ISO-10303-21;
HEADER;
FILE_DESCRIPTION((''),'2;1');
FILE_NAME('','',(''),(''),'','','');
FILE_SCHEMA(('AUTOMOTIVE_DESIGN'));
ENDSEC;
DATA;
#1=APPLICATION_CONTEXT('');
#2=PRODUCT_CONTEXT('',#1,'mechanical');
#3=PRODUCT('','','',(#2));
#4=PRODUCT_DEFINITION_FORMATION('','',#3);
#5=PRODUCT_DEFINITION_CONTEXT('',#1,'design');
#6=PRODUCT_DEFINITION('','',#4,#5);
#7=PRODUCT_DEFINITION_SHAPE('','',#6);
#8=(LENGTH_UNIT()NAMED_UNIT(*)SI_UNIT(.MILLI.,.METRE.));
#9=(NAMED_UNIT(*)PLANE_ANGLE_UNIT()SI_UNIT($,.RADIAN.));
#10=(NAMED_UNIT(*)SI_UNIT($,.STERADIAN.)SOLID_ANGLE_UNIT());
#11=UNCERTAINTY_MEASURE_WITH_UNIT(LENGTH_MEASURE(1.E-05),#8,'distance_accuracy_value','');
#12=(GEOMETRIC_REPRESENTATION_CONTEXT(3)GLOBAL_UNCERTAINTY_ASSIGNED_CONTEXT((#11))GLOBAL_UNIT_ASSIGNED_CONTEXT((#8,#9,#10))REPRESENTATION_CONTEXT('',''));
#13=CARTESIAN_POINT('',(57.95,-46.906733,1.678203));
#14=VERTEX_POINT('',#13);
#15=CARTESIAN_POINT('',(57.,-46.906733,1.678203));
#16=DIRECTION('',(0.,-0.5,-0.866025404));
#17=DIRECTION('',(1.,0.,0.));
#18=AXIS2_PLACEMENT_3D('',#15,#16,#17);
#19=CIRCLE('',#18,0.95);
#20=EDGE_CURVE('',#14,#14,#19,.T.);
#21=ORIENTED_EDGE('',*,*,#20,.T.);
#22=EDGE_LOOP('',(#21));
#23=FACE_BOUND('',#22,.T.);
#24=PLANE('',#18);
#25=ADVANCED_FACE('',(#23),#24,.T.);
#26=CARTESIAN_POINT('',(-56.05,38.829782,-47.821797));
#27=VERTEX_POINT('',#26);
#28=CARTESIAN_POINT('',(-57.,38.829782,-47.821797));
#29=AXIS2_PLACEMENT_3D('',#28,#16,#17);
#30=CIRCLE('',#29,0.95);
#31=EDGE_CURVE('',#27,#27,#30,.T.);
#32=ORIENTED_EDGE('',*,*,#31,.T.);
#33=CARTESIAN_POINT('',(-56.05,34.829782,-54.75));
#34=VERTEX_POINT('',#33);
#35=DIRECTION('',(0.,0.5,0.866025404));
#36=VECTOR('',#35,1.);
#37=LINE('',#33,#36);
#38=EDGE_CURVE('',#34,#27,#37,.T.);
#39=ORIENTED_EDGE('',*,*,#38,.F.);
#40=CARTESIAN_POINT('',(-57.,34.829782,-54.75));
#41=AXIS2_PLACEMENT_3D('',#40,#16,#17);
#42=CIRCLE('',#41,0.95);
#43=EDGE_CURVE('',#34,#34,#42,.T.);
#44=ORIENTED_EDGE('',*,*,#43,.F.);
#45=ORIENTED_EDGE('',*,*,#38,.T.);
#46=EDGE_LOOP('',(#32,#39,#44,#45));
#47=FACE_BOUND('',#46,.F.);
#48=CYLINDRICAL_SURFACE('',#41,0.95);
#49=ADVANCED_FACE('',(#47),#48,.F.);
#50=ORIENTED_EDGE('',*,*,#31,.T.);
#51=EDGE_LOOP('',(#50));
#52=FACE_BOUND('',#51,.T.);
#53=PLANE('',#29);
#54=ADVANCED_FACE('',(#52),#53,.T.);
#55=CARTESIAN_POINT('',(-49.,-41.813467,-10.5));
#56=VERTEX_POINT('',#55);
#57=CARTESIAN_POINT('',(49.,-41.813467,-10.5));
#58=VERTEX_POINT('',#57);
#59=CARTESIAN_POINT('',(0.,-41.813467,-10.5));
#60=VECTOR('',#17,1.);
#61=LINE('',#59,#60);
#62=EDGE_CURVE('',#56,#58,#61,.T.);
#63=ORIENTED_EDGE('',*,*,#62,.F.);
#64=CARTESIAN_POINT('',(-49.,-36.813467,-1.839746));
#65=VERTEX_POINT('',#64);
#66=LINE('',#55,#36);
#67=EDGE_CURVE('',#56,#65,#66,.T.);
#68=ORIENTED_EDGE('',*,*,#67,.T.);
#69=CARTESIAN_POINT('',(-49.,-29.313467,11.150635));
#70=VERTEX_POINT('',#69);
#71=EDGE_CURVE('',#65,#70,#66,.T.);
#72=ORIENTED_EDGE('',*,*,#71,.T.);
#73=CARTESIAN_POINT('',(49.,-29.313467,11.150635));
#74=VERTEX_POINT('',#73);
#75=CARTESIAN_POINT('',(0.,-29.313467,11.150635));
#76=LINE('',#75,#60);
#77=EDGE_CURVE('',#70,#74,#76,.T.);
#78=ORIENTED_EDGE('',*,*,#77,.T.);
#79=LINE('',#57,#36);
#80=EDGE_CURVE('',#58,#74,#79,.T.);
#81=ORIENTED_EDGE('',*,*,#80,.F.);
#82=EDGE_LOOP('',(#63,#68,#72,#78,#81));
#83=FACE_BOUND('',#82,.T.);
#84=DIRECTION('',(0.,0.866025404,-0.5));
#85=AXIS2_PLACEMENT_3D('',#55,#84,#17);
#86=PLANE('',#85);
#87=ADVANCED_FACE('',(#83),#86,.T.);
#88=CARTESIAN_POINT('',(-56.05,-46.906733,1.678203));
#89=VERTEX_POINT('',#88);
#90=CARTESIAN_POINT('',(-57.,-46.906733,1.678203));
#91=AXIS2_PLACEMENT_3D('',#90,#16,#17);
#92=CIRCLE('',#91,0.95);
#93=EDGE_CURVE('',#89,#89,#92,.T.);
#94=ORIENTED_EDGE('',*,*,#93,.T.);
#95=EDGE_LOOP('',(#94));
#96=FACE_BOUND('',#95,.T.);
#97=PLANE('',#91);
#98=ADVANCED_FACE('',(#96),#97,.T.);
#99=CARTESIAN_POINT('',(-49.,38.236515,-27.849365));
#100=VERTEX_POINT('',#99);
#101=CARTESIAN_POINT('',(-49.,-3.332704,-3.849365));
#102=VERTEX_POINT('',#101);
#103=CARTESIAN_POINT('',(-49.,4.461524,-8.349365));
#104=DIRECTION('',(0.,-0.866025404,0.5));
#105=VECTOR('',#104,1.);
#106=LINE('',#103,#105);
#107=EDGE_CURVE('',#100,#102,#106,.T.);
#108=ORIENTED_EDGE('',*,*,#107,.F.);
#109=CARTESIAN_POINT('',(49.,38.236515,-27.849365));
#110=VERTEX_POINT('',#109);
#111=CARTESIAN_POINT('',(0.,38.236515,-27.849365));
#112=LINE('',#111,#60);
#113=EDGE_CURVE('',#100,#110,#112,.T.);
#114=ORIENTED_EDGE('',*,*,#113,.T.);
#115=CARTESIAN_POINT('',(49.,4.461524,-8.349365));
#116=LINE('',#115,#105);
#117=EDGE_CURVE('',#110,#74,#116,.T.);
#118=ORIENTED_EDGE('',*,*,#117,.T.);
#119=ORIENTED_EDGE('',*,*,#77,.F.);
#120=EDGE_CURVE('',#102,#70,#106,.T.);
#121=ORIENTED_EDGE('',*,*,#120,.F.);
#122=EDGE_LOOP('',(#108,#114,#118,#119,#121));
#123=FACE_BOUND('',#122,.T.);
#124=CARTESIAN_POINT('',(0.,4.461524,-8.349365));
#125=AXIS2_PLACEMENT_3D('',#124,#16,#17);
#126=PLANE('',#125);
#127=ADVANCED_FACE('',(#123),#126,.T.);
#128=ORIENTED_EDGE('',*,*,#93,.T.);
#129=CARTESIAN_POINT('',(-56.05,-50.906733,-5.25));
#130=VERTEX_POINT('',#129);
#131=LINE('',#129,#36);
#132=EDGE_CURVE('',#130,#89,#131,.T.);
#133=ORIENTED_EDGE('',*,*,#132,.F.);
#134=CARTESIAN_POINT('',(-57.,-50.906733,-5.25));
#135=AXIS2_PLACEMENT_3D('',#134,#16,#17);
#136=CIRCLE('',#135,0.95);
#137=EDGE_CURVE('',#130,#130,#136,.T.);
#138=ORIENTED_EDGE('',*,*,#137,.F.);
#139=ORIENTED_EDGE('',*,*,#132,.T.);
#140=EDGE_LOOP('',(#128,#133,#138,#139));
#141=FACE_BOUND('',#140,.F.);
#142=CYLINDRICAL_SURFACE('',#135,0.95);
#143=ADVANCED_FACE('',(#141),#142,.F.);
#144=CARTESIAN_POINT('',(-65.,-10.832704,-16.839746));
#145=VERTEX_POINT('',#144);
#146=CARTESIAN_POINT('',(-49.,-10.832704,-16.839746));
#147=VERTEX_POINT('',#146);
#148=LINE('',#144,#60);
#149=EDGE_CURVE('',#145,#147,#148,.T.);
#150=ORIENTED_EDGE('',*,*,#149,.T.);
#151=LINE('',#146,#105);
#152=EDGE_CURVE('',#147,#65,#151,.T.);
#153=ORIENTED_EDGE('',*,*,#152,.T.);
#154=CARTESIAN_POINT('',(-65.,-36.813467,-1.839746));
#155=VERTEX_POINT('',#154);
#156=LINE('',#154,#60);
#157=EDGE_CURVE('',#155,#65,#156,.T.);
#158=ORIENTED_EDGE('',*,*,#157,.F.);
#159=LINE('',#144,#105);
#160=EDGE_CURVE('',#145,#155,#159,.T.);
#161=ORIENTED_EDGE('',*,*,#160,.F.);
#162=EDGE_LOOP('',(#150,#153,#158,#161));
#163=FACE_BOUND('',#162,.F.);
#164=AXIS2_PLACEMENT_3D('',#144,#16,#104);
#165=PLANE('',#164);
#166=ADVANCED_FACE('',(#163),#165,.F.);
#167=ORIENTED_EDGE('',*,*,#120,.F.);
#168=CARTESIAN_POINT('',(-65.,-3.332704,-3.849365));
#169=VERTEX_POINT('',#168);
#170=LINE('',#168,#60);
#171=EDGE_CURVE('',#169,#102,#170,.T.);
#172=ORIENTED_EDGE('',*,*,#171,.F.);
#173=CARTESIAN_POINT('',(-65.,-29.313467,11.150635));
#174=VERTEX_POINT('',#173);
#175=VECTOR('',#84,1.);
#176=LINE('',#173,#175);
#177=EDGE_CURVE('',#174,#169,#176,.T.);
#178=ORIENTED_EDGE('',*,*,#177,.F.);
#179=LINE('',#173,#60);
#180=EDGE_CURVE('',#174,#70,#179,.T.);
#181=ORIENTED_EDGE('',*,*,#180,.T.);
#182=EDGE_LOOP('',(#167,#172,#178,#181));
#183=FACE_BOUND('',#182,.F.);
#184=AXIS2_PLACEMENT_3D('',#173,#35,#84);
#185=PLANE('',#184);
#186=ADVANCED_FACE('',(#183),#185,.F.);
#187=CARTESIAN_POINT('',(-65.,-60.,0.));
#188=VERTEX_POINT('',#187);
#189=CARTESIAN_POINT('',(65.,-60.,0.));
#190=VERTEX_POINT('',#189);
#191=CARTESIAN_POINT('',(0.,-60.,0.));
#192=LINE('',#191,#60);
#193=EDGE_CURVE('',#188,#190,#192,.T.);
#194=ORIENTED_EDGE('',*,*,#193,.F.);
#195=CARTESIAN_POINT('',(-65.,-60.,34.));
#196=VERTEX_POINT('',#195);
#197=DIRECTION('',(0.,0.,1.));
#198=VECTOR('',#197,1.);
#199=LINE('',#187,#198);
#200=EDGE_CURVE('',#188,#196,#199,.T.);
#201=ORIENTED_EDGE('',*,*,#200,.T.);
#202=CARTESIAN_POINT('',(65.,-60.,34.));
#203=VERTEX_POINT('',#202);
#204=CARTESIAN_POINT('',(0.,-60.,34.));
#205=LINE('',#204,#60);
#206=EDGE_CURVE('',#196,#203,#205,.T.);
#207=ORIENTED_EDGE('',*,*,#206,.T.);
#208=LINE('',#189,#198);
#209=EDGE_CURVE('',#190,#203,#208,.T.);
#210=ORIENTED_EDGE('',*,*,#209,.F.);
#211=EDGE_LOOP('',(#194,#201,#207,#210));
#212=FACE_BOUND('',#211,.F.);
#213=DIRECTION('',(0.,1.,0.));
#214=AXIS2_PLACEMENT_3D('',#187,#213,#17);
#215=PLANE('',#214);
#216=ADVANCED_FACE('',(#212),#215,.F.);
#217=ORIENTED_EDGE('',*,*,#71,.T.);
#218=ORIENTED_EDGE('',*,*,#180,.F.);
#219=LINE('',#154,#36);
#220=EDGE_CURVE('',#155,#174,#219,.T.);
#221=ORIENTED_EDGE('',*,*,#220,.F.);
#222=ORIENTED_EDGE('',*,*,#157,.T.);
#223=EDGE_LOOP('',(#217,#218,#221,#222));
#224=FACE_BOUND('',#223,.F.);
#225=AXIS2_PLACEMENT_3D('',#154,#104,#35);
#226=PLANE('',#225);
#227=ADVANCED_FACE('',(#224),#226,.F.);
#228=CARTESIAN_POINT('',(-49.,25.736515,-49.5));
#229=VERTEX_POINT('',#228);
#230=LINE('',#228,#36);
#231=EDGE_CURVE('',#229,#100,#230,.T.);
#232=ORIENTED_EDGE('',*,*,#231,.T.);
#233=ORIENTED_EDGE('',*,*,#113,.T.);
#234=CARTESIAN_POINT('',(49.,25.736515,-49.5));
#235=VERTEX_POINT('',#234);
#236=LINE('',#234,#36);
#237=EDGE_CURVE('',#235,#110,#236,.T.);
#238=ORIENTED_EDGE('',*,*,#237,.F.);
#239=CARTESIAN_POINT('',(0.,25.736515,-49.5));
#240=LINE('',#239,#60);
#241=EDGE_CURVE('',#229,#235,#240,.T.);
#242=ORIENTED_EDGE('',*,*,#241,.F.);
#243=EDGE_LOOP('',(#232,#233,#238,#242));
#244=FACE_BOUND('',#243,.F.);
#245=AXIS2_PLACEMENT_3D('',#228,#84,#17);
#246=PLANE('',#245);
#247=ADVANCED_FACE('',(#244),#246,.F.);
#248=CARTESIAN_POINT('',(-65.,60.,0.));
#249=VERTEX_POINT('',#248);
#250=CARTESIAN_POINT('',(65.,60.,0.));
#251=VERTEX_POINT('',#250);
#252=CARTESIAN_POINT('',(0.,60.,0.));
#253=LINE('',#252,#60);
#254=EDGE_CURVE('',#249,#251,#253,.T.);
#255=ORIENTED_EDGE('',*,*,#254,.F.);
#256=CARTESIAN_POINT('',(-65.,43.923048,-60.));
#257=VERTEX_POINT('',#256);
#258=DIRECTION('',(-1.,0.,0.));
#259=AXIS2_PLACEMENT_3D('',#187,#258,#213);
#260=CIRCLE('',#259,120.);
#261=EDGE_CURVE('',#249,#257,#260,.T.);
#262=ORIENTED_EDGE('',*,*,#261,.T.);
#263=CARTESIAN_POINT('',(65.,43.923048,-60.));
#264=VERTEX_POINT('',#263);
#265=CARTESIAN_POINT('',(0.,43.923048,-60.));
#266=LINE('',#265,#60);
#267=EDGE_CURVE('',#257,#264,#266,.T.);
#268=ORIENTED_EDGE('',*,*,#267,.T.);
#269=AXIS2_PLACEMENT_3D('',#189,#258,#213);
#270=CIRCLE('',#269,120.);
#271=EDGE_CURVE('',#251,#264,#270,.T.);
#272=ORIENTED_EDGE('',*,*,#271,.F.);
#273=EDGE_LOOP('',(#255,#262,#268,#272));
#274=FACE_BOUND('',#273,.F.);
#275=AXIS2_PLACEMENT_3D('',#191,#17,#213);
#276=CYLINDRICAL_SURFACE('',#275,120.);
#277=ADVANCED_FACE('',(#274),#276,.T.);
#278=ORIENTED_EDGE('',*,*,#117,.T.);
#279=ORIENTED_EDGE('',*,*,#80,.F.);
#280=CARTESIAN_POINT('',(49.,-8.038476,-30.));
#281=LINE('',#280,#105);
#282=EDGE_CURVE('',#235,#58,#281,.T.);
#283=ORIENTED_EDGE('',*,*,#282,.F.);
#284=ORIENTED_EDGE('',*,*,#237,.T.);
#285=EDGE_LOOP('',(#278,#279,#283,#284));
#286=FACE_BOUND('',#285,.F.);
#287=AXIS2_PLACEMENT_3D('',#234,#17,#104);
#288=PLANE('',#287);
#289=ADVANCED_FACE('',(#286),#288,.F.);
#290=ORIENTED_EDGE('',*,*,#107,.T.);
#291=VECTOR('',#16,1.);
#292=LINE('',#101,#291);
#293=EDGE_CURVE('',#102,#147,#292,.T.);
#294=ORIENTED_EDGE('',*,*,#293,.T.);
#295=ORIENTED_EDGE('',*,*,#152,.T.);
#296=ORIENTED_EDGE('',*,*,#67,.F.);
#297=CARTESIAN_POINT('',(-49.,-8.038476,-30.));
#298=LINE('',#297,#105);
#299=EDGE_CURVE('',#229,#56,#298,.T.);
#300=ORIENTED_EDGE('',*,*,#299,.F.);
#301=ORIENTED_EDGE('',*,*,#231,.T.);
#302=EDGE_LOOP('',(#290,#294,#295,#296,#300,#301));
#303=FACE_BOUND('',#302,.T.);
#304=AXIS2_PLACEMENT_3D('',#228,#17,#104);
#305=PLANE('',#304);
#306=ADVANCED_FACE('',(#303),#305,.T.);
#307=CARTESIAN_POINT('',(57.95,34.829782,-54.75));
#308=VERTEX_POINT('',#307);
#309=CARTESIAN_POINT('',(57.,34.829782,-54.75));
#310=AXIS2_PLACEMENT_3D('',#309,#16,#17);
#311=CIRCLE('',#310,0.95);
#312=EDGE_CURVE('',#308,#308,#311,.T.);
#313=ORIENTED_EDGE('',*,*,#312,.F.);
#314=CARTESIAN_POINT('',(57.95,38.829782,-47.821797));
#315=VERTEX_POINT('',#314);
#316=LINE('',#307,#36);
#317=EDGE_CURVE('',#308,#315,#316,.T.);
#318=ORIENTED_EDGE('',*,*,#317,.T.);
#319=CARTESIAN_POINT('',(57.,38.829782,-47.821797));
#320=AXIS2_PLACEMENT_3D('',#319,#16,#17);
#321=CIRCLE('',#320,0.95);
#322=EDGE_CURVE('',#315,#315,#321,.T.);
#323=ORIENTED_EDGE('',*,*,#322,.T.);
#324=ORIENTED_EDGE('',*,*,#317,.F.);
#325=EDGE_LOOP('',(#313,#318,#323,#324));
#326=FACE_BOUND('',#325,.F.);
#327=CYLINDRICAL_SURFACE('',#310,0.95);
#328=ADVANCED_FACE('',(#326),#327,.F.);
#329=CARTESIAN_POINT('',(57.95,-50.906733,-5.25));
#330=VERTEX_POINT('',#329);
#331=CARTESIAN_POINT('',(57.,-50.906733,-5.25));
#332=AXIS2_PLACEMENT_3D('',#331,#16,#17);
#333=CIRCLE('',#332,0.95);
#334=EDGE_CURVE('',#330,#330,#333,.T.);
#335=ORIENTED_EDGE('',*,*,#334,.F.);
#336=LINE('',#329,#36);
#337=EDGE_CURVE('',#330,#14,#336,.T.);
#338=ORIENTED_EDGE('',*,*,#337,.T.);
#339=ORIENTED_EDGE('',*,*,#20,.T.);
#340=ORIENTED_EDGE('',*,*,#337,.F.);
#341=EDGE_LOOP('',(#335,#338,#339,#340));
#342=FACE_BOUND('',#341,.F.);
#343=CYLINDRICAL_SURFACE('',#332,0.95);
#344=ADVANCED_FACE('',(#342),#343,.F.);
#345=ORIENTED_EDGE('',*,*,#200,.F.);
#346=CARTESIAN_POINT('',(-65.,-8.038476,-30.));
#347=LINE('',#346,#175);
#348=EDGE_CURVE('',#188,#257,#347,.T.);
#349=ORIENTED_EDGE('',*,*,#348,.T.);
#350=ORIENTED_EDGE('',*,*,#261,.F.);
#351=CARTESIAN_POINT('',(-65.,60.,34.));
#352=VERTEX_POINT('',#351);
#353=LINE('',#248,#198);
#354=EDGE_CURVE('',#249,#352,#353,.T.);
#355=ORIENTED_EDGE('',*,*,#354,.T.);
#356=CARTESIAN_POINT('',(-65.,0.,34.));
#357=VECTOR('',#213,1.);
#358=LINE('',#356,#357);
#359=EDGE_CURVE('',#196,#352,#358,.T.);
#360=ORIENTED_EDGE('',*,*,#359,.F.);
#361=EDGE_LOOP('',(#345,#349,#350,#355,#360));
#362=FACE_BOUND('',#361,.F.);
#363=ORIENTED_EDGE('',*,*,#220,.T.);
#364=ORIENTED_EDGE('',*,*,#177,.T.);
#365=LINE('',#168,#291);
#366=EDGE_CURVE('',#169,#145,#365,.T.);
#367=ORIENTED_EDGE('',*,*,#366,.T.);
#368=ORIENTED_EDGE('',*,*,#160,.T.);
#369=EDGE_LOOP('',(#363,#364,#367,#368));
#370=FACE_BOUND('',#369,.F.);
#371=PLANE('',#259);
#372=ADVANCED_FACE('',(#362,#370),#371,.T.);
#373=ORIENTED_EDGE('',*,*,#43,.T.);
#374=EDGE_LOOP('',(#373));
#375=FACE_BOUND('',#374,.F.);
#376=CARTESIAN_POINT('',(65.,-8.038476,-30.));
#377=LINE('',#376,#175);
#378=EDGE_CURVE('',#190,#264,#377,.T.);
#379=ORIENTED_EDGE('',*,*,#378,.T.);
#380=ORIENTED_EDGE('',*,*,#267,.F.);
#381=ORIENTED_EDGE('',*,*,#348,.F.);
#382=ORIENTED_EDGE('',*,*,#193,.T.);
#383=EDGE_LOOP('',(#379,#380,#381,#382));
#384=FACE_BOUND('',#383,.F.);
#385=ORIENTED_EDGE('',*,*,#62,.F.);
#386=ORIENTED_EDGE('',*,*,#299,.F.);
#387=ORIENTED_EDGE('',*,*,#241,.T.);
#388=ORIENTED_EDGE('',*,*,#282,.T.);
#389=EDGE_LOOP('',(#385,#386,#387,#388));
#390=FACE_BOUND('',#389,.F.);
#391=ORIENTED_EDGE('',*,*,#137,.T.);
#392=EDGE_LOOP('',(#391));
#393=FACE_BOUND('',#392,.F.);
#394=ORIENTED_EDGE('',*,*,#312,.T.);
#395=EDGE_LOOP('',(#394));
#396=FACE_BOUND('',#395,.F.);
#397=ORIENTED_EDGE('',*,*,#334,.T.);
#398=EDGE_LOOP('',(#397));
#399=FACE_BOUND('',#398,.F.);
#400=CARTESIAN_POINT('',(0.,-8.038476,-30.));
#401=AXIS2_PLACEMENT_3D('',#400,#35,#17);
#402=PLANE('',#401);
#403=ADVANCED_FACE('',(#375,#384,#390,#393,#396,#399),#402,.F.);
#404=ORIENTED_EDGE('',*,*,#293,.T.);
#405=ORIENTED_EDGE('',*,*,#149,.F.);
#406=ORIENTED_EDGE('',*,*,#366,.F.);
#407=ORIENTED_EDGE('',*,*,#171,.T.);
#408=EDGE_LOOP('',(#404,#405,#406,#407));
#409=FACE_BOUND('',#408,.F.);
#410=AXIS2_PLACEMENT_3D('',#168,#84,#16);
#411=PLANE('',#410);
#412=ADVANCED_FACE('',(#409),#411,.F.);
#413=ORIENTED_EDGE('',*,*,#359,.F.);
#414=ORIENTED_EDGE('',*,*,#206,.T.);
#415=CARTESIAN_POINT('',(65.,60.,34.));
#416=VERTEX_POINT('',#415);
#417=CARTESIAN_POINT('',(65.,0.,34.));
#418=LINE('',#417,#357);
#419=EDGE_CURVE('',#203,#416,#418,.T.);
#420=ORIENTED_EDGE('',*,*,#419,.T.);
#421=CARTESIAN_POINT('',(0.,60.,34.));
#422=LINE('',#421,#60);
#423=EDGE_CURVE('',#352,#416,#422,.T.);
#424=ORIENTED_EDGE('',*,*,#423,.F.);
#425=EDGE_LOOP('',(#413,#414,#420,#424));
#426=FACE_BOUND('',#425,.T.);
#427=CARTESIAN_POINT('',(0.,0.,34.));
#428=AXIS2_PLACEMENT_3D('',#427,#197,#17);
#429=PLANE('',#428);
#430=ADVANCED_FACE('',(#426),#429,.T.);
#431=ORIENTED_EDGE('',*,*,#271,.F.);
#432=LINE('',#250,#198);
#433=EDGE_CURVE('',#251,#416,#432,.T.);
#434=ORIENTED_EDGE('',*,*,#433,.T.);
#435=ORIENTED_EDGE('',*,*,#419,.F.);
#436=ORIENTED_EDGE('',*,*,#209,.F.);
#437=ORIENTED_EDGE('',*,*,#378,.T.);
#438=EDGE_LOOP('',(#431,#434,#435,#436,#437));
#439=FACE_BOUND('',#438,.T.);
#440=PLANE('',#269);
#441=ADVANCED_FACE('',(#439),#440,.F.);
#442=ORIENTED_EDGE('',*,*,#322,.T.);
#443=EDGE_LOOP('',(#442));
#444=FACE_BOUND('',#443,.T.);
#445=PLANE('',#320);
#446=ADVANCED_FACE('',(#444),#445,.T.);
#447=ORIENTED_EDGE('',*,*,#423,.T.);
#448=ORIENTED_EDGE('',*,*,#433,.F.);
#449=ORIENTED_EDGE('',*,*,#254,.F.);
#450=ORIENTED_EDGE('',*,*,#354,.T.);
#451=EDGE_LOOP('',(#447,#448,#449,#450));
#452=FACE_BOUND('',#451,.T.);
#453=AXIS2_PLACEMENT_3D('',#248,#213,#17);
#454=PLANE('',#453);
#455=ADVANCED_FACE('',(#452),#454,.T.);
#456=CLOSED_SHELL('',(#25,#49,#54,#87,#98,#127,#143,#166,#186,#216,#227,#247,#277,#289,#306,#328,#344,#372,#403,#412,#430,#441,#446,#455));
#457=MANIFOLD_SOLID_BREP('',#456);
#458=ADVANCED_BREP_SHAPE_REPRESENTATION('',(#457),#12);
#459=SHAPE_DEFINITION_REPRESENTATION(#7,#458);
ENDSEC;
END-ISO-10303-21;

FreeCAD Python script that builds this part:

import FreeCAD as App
import Part
import Sketcher

V = App.Vector
Q = App.Units.Quantity


def add_polygon(sketch, points):
    """Adds a closed chain of lines whose ends are joined by coincident constraints."""
    first, n = sketch.GeometryCount, len(points)
    for a, b in zip(points, points[1:] + points[:1]):
        sketch.addGeometry(Part.LineSegment(App.Vector(*a, 0), App.Vector(*b, 0)), False)
    for i in range(n):
        sketch.addConstraint(Sketcher.Constraint("Coincident", first + i, 2, first + (i + 1) % n, 1))

doc = App.newDocument("Part")
body = doc.addObject("PartDesign::Body", "Body")

sketch1 = body.newObject("Sketcher::SketchObject", "Sketch")
sketch1.AttachmentSupport = (doc.getObject("XY_Plane"), [""])
sketch1.MapMode = "FlatFace"
add_polygon(sketch1, [(-65, 60), (-65, -60), (65, -60), (65, 60)])
sketch1.addConstraint([
    Sketcher.Constraint("Vertical", 0),
    Sketcher.Constraint("Horizontal", 1),
    Sketcher.Constraint("Vertical", 2),
    Sketcher.Constraint("Horizontal", 3),
    Sketcher.Constraint("Symmetric", 0, 2, 2, 2, -1, 1),
    Sketcher.Constraint("DistanceX", 1, 1, 1, 2, 130.0),
    Sketcher.Constraint("DistanceY", 0, 2, 0, 1, 120.0),
])
pad1 = body.newObject("PartDesign::Pad", "Pad")
pad1.Profile = sketch1
pad1.Length = 34

sketch2 = body.newObject("Sketcher::SketchObject", "Sketch001")
sketch2.AttachmentSupport = (doc.getObject("XY_Plane"), [""])
sketch2.MapMode = "FlatFace"
add_polygon(sketch2, [(-65, 60), (-65, -60), (65, -60), (65, 60)])
sketch2.addGeometry(Part.LineSegment(V(65, -60, 0), V(-65, -60, 0)), True)
sketch2.addConstraint([
    Sketcher.Constraint("Vertical", 0),
    Sketcher.Constraint("Horizontal", 1),
    Sketcher.Constraint("Vertical", 2),
    Sketcher.Constraint("Horizontal", 3),
    Sketcher.Constraint("Horizontal", 4),
    Sketcher.Constraint("Coincident", 4, 1, 1, 2),
    Sketcher.Constraint("Symmetric", 0, 2, 2, 2, -1, 1),
    Sketcher.Constraint("Vertical", 3, 2, 4, 2),
    Sketcher.Constraint("DistanceX", 1, 1, 1, 2, 130.0),
    Sketcher.Constraint("DistanceY", 0, 2, 0, 1, 120.0),
])
revolution = body.newObject("PartDesign::Revolution", "Revolution")
revolution.Profile = sketch2
revolution.ReferenceAxis = (sketch2, ["Axis0"])
revolution.Angle = 30

sketch3 = body.newObject("Sketcher::SketchObject", "Sketch002")
sketch3.Placement = App.Placement(V(0, -15, -25.980762), App.Rotation(V(1, 0, 0), V(0, -0.866025404, 0.5), V(0, -0.5, -0.866025404), "ZXY"))
add_polygon(sketch3, [(-49, 31), (-49, -47), (49, -47), (49, 31)])
sketch3.addConstraint([
    Sketcher.Constraint("Vertical", 0),
    Sketcher.Constraint("Horizontal", 1),
    Sketcher.Constraint("Vertical", 2),
    Sketcher.Constraint("Horizontal", 3),
    Sketcher.Constraint("DistanceX", 1, 1, 1, 2, 98.0),
    Sketcher.Constraint("DistanceY", 0, 2, 0, 1, 78.0),
    Sketcher.Constraint("DistanceX", 0, 2, -1, 1, 49.0),
    Sketcher.Constraint("DistanceY", 0, 2, -1, 1, 47.038476),
])
pocket1 = body.newObject("PartDesign::Pocket", "Pocket")
pocket1.Profile = sketch3
pocket1.Length = 25

sketch4 = body.newObject("Sketcher::SketchObject", "Sketch003")
sketch4.AttachmentSupport = (doc.getObject("YZ_Plane"), [""])
sketch4.MapMode = "FlatFace"
sketch4.AttachmentOffset = App.Placement(V(0, 0, -65), App.Rotation())
add_polygon(sketch4, [(-11, -17), (-37, -2), (-29, 11), (-3, -4)])
sketch4.addConstraint([
    Sketcher.Constraint("Perpendicular", 0, 1),
    Sketcher.Constraint("Perpendicular", 1, 2),
    Sketcher.Constraint("Perpendicular", 2, 3),
    Sketcher.Constraint("Angle", 0, Q("150 deg")),
    Sketcher.Constraint("Distance", 0, 30.0),
    Sketcher.Constraint("Distance", 1, 15.0),
    Sketcher.Constraint("DistanceX", 0, 2, -1, 1, 36.813467),
    Sketcher.Constraint("DistanceY", 0, 2, -1, 1, 1.839746),
])
pocket2 = body.newObject("PartDesign::Pocket", "Pocket001")
pocket2.Profile = sketch4
pocket2.Length = 16
pocket2.Reversed = True

sketch5 = body.newObject("Sketcher::SketchObject", "Sketch004")
sketch5.Placement = App.Placement(V(0, -15, -25.980762), App.Rotation(V(1, 0, 0), V(0, -0.866025404, 0.5), V(0, -0.5, -0.866025404), "ZXY"))
sketch5.addGeometry([
    Part.Circle(V(57, 41.5, 0), V(0, 0, 1), 0.9),
    Part.Circle(V(-57, 41.5, 0), V(0, 0, 1), 0.9),
    Part.Circle(V(-57, -57.5, 0), V(0, 0, 1), 0.9),
    Part.Circle(V(57, -57.5, 0), V(0, 0, 1), 0.9),
], False)
sketch5.addConstraint([
    Sketcher.Constraint("Equal", 0, 1),
    Sketcher.Constraint("Equal", 1, 2),
    Sketcher.Constraint("Equal", 2, 3),
    Sketcher.Constraint("Symmetric", 0, 3, 1, 3, -2),
    Sketcher.Constraint("Symmetric", 2, 3, 3, 3, -2),
    Sketcher.Constraint("Vertical", 1, 3, 2, 3),
    Sketcher.Constraint("Diameter", 0, 1.9),
    Sketcher.Constraint("DistanceX", -1, 1, 0, 3, 57.0),
    Sketcher.Constraint("DistanceY", 2, 3, 1, 3, 99.0),
    Sketcher.Constraint("DistanceY", -1, 1, 0, 3, 41.461524),
])
pocket3 = body.newObject("PartDesign::Pocket", "Pocket002")
pocket3.Profile = sketch5
pocket3.Length = 8

doc.recompute()
